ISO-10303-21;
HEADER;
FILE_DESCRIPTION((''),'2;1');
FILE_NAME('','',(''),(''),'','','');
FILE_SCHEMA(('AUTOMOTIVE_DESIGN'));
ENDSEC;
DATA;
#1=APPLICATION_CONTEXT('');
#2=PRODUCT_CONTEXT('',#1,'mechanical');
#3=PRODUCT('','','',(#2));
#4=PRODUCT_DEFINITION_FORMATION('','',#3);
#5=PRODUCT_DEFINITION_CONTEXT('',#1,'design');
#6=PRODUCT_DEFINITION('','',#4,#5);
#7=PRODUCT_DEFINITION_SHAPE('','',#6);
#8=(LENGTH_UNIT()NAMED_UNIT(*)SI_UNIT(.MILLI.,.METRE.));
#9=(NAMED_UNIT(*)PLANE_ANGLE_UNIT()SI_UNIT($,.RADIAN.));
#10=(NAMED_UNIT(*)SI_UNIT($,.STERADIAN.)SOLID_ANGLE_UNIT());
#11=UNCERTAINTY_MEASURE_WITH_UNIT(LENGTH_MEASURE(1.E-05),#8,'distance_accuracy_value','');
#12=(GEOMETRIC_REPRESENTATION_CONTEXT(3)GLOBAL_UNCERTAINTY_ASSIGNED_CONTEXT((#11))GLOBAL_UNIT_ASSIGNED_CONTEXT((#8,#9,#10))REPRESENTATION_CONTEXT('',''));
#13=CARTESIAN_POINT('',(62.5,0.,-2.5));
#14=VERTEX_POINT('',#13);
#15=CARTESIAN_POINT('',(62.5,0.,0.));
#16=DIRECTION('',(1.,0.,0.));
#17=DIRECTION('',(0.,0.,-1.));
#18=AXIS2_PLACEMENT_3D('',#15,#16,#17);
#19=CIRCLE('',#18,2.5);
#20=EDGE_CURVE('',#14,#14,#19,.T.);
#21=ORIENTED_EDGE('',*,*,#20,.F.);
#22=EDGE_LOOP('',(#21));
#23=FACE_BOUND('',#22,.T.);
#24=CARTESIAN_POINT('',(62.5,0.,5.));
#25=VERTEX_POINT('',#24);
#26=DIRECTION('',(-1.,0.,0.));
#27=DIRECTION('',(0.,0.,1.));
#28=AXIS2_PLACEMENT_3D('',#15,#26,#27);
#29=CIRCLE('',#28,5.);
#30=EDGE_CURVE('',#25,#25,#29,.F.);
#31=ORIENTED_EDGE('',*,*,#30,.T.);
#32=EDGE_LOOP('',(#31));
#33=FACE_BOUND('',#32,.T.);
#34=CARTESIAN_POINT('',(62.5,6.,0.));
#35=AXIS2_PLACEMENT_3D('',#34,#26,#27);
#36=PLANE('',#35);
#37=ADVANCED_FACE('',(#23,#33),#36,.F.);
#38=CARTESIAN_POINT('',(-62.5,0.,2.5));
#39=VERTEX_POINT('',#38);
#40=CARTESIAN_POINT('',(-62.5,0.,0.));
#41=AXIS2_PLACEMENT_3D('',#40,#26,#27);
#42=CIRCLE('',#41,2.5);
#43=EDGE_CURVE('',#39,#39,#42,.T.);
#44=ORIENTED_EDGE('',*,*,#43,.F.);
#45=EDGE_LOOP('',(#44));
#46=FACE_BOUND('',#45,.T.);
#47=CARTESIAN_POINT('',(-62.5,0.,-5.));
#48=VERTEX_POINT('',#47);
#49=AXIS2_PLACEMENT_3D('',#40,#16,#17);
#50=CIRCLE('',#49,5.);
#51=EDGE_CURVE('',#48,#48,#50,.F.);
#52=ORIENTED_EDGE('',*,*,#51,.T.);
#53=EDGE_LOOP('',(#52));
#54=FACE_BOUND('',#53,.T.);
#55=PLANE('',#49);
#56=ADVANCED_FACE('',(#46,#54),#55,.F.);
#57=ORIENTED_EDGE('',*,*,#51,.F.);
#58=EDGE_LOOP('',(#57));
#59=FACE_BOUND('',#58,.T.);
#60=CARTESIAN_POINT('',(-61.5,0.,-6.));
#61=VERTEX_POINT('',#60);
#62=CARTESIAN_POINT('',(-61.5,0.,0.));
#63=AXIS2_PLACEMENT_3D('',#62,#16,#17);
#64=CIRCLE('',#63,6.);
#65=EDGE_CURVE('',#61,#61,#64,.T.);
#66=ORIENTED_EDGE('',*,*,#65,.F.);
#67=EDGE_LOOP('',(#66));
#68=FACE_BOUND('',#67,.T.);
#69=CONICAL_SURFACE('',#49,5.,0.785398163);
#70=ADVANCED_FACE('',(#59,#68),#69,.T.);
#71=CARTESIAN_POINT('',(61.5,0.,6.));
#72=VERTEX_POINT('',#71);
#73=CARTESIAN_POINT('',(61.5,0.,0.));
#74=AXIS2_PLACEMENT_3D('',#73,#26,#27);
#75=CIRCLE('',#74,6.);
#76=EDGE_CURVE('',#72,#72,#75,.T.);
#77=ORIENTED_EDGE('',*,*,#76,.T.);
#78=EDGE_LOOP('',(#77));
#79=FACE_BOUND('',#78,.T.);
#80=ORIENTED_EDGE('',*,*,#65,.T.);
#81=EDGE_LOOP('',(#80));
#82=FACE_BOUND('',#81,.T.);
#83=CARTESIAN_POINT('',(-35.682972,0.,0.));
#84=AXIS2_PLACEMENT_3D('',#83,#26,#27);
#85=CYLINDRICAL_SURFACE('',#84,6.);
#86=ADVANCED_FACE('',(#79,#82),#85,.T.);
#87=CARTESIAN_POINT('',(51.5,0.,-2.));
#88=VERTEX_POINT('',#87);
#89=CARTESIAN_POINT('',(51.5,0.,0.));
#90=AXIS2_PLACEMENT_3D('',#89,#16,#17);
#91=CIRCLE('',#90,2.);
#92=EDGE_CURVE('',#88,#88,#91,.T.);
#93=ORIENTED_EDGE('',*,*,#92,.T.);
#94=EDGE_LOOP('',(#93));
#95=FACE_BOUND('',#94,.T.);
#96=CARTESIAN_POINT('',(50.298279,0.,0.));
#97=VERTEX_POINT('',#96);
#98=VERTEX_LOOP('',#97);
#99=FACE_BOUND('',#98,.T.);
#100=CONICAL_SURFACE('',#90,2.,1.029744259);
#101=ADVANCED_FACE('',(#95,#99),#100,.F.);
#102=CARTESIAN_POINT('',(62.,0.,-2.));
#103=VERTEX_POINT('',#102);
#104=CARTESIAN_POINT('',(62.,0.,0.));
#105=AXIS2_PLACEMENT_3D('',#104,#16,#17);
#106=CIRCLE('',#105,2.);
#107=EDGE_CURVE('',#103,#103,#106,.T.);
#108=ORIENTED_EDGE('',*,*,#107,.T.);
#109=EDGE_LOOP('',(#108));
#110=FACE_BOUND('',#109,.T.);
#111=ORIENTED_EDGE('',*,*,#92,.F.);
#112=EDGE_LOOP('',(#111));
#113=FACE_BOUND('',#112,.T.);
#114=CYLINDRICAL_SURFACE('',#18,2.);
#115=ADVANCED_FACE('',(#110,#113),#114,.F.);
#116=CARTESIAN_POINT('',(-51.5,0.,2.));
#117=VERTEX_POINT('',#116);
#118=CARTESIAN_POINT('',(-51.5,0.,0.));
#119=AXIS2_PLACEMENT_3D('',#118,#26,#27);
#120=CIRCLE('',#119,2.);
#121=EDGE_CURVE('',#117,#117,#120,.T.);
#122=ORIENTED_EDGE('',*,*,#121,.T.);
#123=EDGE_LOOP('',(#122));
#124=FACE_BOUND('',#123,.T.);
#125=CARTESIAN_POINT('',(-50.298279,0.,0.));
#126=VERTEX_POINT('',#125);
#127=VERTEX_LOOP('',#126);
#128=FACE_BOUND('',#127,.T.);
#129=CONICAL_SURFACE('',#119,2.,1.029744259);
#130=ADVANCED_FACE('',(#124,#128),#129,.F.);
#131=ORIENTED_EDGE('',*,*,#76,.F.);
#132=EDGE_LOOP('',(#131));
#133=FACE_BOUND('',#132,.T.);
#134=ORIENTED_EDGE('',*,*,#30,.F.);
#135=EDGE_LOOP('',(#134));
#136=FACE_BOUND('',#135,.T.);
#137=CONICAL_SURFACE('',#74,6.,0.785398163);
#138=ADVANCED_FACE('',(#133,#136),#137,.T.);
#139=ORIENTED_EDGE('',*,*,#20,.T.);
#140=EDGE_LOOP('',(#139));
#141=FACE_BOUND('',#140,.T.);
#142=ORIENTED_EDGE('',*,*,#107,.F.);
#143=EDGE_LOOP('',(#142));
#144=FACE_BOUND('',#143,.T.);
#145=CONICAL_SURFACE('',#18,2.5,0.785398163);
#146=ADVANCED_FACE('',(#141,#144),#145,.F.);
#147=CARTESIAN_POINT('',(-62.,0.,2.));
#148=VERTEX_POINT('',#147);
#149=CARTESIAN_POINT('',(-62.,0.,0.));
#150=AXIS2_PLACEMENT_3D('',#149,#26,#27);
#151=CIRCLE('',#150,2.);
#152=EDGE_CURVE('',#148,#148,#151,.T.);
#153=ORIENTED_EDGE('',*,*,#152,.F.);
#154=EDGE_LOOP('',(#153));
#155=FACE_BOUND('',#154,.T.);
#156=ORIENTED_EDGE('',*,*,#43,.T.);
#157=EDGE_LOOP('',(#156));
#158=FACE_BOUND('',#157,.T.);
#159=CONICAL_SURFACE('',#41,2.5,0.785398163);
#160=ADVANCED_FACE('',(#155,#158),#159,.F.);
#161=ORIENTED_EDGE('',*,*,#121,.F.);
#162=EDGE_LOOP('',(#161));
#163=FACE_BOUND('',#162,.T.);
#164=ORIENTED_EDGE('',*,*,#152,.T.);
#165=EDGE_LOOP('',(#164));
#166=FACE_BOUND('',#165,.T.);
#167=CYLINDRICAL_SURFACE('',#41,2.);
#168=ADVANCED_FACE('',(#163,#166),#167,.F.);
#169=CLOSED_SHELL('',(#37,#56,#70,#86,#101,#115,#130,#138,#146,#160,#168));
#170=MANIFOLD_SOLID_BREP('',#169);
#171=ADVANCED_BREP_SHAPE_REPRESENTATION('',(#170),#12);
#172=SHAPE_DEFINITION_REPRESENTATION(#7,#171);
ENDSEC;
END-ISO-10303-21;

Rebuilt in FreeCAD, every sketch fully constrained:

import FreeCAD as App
import Part
import Sketcher
Q = App.Units.Quantity


def edges_at(feature, points):
    """Names of the edges that pass closest to the given points."""
    edges = feature.Shape.Edges
    near = lambda p: min(range(len(edges)), key=lambda i: edges[i].distToShape(Part.Vertex(*p))[0])
    return sorted({f"Edge{near(p) + 1}" for p in points})


def add_polygon(sketch, points):
    """Adds a closed chain of lines whose ends are joined by coincident constraints."""
    first, n = sketch.GeometryCount, len(points)
    for a, b in zip(points, points[1:] + points[:1]):
        sketch.addGeometry(Part.LineSegment(App.Vector(*a, 0), App.Vector(*b, 0)), False)
    for i in range(n):
        sketch.addConstraint(Sketcher.Constraint("Coincident", first + i, 2, first + (i + 1) % n, 1))

doc = App.newDocument("Part")
body = doc.addObject("PartDesign::Body", "Body")

sketch1 = doc.addObject("Sketcher::SketchObject", "Sketch")
body.addObject(sketch1)
sketch1.AttachmentSupport = (doc.XY_Plane, [""])
sketch1.MapMode = "FlatFace"
add_polygon(sketch1, [(-62, 6), (-62, 0), (62, 0), (62, 6)])
sketch1.addConstraint([
    Sketcher.Constraint("Vertical", 0),
    Sketcher.Constraint("Horizontal", 1),
    Sketcher.Constraint("Vertical", 2),
    Sketcher.Constraint("Horizontal", 3),
    Sketcher.Constraint("Symmetric", 0, 2, 1, 2, -1, 1),
    Sketcher.Constraint("DistanceX", 1, 1, 1, 2, Q("125 mm")),
    Sketcher.Constraint("DistanceY", 0, 2, 0, 1, Q("6 mm")),
])
revolution = doc.addObject("PartDesign::Revolution", "Revolution")
body.addObject(revolution)
revolution.Profile = sketch1
revolution.ReferenceAxis = (sketch1, ["H_Axis"])
revolution.Angle = 360
doc.recompute()

chamfer = doc.addObject("PartDesign::Chamfer", "Chamfer")
body.addObject(chamfer)
chamfer.Base = (revolution, edges_at(revolution, [(62.5, 0, -6), (-62.5, 0, -6)]))
chamfer.Size = 1

sketch2 = doc.addObject("Sketcher::SketchObject", "Sketch001")
body.addObject(sketch2)
sketch2.AttachmentSupport = (doc.YZ_Plane, [""])
sketch2.MapMode = "FlatFace"
sketch2.AttachmentOffset = App.Placement(App.Vector(0, 0, 62.5), App.Rotation())
sketch2.addGeometry(Part.Circle(App.Vector(0, 0, 0), App.Vector(0, 0, 1), 2), False)
sketch2.addConstraint([
    Sketcher.Constraint("Coincident", 0, 3, -1, 1),
    Sketcher.Constraint("Diameter", 0, Q("4 mm")),
])
doc.recompute()
hole = doc.addObject("PartDesign::Hole", "Hole")
body.addObject(hole)
hole.Profile = sketch2
hole.ThreadType = "None"
hole.Diameter = 4
hole.DepthType = "Dimension"
hole.Depth = 11
hole.DrillPoint = "Angled"
hole.DrillPointAngle = 118
hole.HoleCutType = "Countersink"
hole.HoleCutDiameter = 5
hole.HoleCutCountersinkAngle = 90

sketch3 = doc.addObject("Sketcher::SketchObject", "Sketch002")
body.addObject(sketch3)
sketch3.AttachmentSupport = (doc.YZ_Plane, [""])
sketch3.MapMode = "FlatFace"
sketch3.AttachmentOffset = App.Placement(App.Vector(0, 0, -62.5), App.Rotation())
sketch3.addGeometry(Part.Circle(App.Vector(0, 0, 0), App.Vector(0, 0, 1), 2), False)
sketch3.addConstraint([
    Sketcher.Constraint("Coincident", 0, 3, -1, 1),
    Sketcher.Constraint("Diameter", 0, Q("4 mm")),
])
doc.recompute()
hole2 = doc.addObject("PartDesign::Hole", "Hole001")
body.addObject(hole2)
hole2.Profile = sketch3
hole2.ThreadType = "None"
hole2.Diameter = 4
hole2.DepthType = "Dimension"
hole2.Depth = 11
hole2.DrillPoint = "Angled"
hole2.DrillPointAngle = 118
hole2.HoleCutType = "Countersink"
hole2.HoleCutDiameter = 5
hole2.HoleCutCountersinkAngle = 90
hole2.Reversed = True

doc.recompute()
